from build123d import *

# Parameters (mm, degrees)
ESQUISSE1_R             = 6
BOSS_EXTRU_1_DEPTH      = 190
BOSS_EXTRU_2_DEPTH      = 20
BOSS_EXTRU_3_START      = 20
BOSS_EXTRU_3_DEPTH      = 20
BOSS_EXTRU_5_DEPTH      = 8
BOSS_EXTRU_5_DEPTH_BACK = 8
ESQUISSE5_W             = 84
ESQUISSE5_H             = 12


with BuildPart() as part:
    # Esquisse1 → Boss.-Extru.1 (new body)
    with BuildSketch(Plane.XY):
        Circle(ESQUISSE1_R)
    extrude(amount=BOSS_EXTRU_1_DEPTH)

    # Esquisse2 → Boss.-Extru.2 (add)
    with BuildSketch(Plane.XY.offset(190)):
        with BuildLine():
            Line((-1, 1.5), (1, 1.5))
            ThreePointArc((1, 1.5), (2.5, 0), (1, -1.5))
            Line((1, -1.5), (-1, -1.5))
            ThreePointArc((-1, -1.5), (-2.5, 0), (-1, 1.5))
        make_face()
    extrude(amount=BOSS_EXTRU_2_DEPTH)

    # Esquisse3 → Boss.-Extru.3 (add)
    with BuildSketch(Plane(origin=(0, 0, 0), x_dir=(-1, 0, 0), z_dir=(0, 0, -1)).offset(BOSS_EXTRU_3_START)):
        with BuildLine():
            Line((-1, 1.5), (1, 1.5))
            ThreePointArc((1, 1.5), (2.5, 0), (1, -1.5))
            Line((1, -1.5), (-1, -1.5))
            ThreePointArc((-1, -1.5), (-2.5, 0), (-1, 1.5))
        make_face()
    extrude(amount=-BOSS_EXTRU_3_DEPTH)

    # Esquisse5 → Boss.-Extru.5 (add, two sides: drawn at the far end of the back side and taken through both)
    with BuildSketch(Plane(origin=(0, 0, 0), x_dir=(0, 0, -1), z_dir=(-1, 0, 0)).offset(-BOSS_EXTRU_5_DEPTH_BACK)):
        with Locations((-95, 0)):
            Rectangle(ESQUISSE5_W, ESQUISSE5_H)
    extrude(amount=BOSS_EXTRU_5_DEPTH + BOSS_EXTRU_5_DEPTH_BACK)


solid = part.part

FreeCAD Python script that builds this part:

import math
import FreeCAD as App
import Part
import Sketcher

doc = App.newDocument("Part")
params = doc.addObject("Spreadsheet::Sheet", "Params")
for row, (alias, value) in enumerate([
    ("sketch1_diameter", "12 mm"),
    ("pad1_length", "190 mm"),
    ("sketch2_radius", "1.5 mm"),
    ("sketch2_width", "2 mm"),
    ("pad2_length", "20 mm"),
    ("sketch3_radius", "1.5 mm"),
    ("sketch3_width", "2 mm"),
    ("pad3_length", "20 mm"),
    ("sketch4_width", "12 mm"),
    ("sketch4_height", "84 mm"),
    ("pad4_length", "8 mm"),
    ("pad4_length2", "8 mm"),
], start=1):
    params.set(f"A{row}", alias)
    params.set(f"B{row}", "=" + value)
    params.setAlias(f"B{row}", alias)

body = doc.addObject("PartDesign::Body", "Body")

# Sketch on XY plane
sketch1 = body.newObject("Sketcher::SketchObject", "Sketch")
sketch1.AttachmentSupport = (doc.getObject("XY_Plane"), [""])
sketch1.MapMode = "FlatFace"
sketch1.addGeometry(Part.Circle(App.Vector(0, 0, 0), App.Vector(0, 0, 1), 6), False)
sketch1.addConstraint(Sketcher.Constraint("Coincident", 0, 3, -1, 1))
sketch1.addConstraint(Sketcher.Constraint("Diameter", 0, 12.0))
sketch1.setExpression("Constraints[1]", "Params.sketch1_diameter")
pad1 = body.newObject("PartDesign::Pad", "Pad")
pad1.Profile = sketch1
pad1.setExpression("Length", "Params.pad1_length")

# Sketch on XY plane
sketch2 = body.newObject("Sketcher::SketchObject", "Sketch001")
sketch2.AttachmentSupport = (doc.getObject("XY_Plane"), [""])
sketch2.MapMode = "FlatFace"
sketch2.AttachmentOffset = App.Placement(App.Vector(0, 0, 190), App.Rotation())
sketch2.addGeometry(Part.LineSegment(App.Vector(1, 1.5, 0), App.Vector(-1, 1.5, 0)), False)
sketch2.addGeometry(Part.ArcOfCircle(Part.Circle(App.Vector(-1, 0, 0), App.Vector(0, 0, 1), 1.5), math.radians(90), math.radians(270)), False)
sketch2.addGeometry(Part.LineSegment(App.Vector(-1, -1.5, 0), App.Vector(1, -1.5, 0)), False)
sketch2.addGeometry(Part.ArcOfCircle(Part.Circle(App.Vector(1, 0, 0), App.Vector(0, 0, 1), 1.5), math.radians(-90), math.radians(90)), False)
sketch2.addConstraint(Sketcher.Constraint("Tangent", 0, 2, 1, 1))
sketch2.addConstraint(Sketcher.Constraint("Tangent", 1, 2, 2, 1))
sketch2.addConstraint(Sketcher.Constraint("Tangent", 2, 2, 3, 1))
sketch2.addConstraint(Sketcher.Constraint("Tangent", 3, 2, 0, 1))
sketch2.addConstraint(Sketcher.Constraint("Horizontal", 0))
sketch2.addConstraint(Sketcher.Constraint("Horizontal", 2))
sketch2.addConstraint(Sketcher.Constraint("Symmetric", 1, 3, 3, 3, -1, 1))
sketch2.addConstraint(Sketcher.Constraint("Radius", 1, 1.5))
sketch2.addConstraint(Sketcher.Constraint("DistanceX", 0, 2, 0, 1, 2.0))
sketch2.setExpression("Constraints[7]", "Params.sketch2_radius")
sketch2.setExpression("Constraints[8]", "Params.sketch2_width")
pad2 = body.newObject("PartDesign::Pad", "Pad001")
pad2.Profile = sketch2
pad2.setExpression("Length", "Params.pad2_length")

# Sketch on XY plane
sketch3 = body.newObject("Sketcher::SketchObject", "Sketch002")
sketch3.AttachmentSupport = (doc.getObject("XY_Plane"), [""])
sketch3.MapMode = "FlatFace"
sketch3.AttachmentOffset = App.Placement(App.Vector(0, 0, -20), App.Rotation())
sketch3.addGeometry(Part.LineSegment(App.Vector(-1, 1.5, 0), App.Vector(1, 1.5, 0)), False)
sketch3.addGeometry(Part.ArcOfCircle(Part.Circle(App.Vector(1, 0, 0), App.Vector(0, 0, 1), 1.5), math.radians(-90), math.radians(90)), False)
sketch3.addGeometry(Part.LineSegment(App.Vector(1, -1.5, 0), App.Vector(-1, -1.5, 0)), False)
sketch3.addGeometry(Part.ArcOfCircle(Part.Circle(App.Vector(-1, 0, 0), App.Vector(0, 0, 1), 1.5), math.radians(90), math.radians(270)), False)
sketch3.addConstraint(Sketcher.Constraint("Tangent", 0, 2, 1, 2))
sketch3.addConstraint(Sketcher.Constraint("Tangent", 1, 1, 2, 1))
sketch3.addConstraint(Sketcher.Constraint("Tangent", 2, 2, 3, 2))
sketch3.addConstraint(Sketcher.Constraint("Tangent", 3, 1, 0, 1))
sketch3.addConstraint(Sketcher.Constraint("Horizontal", 0))
sketch3.addConstraint(Sketcher.Constraint("Horizontal", 2))
sketch3.addConstraint(Sketcher.Constraint("Symmetric", 1, 3, 3, 3, -1, 1))
sketch3.addConstraint(Sketcher.Constraint("Radius", 1, 1.5))
sketch3.addConstraint(Sketcher.Constraint("DistanceX", 0, 1, 0, 2, 2.0))
sketch3.setExpression("Constraints[7]", "Params.sketch3_radius")
sketch3.setExpression("Constraints[8]", "Params.sketch3_width")
pad3 = body.newObject("PartDesign::Pad", "Pad002")
pad3.Profile = sketch3
pad3.setExpression("Length", "Params.pad3_length")

# Sketch on YZ plane
sketch4 = body.newObject("Sketcher::SketchObject", "Sketch003")
sketch4.AttachmentSupport = (doc.getObject("YZ_Plane"), [""])
sketch4.MapMode = "FlatFace"
sketch4.addGeometry(Part.LineSegment(App.Vector(-6, 137, 0), App.Vector(6, 137, 0)), False)
sketch4.addGeometry(Part.LineSegment(App.Vector(6, 137, 0), App.Vector(6, 53, 0)), False)
sketch4.addGeometry(Part.LineSegment(App.Vector(6, 53, 0), App.Vector(-6, 53, 0)), False)
sketch4.addGeometry(Part.LineSegment(App.Vector(-6, 53, 0), App.Vector(-6, 137, 0)), False)
sketch4.addConstraint(Sketcher.Constraint("Coincident", 0, 2, 1, 1))
sketch4.addConstraint(Sketcher.Constraint("Coincident", 1, 2, 2, 1))
sketch4.addConstraint(Sketcher.Constraint("Coincident", 2, 2, 3, 1))
sketch4.addConstraint(Sketcher.Constraint("Coincident", 3, 2, 0, 1))
sketch4.addConstraint(Sketcher.Constraint("Horizontal", 0))
sketch4.addConstraint(Sketcher.Constraint("Vertical", 1))
sketch4.addConstraint(Sketcher.Constraint("Horizontal", 2))
sketch4.addConstraint(Sketcher.Constraint("Vertical", 3))
sketch4.addConstraint(Sketcher.Constraint("DistanceX", 0, 1, 0, 2, 12.0))
sketch4.addConstraint(Sketcher.Constraint("DistanceY", 1, 2, 1, 1, 84.0))
sketch4.addConstraint(Sketcher.Constraint("DistanceX", -1, 1, 0, 2, 6.0))
sketch4.addConstraint(Sketcher.Constraint("DistanceY", -1, 1, 0, 2, 137.0))
sketch4.setExpression("Constraints[8]", "Params.sketch4_width")
sketch4.setExpression("Constraints[9]", "Params.sketch4_height")
pad4 = body.newObject("PartDesign::Pad", "Pad003")
pad4.Profile = sketch4
pad4.Type = "TwoLengths"
pad4.setExpression("Length", "Params.pad4_length")
pad4.setExpression("Length2", "Params.pad4_length2")
pad4.Reversed = True

doc.recompute()
